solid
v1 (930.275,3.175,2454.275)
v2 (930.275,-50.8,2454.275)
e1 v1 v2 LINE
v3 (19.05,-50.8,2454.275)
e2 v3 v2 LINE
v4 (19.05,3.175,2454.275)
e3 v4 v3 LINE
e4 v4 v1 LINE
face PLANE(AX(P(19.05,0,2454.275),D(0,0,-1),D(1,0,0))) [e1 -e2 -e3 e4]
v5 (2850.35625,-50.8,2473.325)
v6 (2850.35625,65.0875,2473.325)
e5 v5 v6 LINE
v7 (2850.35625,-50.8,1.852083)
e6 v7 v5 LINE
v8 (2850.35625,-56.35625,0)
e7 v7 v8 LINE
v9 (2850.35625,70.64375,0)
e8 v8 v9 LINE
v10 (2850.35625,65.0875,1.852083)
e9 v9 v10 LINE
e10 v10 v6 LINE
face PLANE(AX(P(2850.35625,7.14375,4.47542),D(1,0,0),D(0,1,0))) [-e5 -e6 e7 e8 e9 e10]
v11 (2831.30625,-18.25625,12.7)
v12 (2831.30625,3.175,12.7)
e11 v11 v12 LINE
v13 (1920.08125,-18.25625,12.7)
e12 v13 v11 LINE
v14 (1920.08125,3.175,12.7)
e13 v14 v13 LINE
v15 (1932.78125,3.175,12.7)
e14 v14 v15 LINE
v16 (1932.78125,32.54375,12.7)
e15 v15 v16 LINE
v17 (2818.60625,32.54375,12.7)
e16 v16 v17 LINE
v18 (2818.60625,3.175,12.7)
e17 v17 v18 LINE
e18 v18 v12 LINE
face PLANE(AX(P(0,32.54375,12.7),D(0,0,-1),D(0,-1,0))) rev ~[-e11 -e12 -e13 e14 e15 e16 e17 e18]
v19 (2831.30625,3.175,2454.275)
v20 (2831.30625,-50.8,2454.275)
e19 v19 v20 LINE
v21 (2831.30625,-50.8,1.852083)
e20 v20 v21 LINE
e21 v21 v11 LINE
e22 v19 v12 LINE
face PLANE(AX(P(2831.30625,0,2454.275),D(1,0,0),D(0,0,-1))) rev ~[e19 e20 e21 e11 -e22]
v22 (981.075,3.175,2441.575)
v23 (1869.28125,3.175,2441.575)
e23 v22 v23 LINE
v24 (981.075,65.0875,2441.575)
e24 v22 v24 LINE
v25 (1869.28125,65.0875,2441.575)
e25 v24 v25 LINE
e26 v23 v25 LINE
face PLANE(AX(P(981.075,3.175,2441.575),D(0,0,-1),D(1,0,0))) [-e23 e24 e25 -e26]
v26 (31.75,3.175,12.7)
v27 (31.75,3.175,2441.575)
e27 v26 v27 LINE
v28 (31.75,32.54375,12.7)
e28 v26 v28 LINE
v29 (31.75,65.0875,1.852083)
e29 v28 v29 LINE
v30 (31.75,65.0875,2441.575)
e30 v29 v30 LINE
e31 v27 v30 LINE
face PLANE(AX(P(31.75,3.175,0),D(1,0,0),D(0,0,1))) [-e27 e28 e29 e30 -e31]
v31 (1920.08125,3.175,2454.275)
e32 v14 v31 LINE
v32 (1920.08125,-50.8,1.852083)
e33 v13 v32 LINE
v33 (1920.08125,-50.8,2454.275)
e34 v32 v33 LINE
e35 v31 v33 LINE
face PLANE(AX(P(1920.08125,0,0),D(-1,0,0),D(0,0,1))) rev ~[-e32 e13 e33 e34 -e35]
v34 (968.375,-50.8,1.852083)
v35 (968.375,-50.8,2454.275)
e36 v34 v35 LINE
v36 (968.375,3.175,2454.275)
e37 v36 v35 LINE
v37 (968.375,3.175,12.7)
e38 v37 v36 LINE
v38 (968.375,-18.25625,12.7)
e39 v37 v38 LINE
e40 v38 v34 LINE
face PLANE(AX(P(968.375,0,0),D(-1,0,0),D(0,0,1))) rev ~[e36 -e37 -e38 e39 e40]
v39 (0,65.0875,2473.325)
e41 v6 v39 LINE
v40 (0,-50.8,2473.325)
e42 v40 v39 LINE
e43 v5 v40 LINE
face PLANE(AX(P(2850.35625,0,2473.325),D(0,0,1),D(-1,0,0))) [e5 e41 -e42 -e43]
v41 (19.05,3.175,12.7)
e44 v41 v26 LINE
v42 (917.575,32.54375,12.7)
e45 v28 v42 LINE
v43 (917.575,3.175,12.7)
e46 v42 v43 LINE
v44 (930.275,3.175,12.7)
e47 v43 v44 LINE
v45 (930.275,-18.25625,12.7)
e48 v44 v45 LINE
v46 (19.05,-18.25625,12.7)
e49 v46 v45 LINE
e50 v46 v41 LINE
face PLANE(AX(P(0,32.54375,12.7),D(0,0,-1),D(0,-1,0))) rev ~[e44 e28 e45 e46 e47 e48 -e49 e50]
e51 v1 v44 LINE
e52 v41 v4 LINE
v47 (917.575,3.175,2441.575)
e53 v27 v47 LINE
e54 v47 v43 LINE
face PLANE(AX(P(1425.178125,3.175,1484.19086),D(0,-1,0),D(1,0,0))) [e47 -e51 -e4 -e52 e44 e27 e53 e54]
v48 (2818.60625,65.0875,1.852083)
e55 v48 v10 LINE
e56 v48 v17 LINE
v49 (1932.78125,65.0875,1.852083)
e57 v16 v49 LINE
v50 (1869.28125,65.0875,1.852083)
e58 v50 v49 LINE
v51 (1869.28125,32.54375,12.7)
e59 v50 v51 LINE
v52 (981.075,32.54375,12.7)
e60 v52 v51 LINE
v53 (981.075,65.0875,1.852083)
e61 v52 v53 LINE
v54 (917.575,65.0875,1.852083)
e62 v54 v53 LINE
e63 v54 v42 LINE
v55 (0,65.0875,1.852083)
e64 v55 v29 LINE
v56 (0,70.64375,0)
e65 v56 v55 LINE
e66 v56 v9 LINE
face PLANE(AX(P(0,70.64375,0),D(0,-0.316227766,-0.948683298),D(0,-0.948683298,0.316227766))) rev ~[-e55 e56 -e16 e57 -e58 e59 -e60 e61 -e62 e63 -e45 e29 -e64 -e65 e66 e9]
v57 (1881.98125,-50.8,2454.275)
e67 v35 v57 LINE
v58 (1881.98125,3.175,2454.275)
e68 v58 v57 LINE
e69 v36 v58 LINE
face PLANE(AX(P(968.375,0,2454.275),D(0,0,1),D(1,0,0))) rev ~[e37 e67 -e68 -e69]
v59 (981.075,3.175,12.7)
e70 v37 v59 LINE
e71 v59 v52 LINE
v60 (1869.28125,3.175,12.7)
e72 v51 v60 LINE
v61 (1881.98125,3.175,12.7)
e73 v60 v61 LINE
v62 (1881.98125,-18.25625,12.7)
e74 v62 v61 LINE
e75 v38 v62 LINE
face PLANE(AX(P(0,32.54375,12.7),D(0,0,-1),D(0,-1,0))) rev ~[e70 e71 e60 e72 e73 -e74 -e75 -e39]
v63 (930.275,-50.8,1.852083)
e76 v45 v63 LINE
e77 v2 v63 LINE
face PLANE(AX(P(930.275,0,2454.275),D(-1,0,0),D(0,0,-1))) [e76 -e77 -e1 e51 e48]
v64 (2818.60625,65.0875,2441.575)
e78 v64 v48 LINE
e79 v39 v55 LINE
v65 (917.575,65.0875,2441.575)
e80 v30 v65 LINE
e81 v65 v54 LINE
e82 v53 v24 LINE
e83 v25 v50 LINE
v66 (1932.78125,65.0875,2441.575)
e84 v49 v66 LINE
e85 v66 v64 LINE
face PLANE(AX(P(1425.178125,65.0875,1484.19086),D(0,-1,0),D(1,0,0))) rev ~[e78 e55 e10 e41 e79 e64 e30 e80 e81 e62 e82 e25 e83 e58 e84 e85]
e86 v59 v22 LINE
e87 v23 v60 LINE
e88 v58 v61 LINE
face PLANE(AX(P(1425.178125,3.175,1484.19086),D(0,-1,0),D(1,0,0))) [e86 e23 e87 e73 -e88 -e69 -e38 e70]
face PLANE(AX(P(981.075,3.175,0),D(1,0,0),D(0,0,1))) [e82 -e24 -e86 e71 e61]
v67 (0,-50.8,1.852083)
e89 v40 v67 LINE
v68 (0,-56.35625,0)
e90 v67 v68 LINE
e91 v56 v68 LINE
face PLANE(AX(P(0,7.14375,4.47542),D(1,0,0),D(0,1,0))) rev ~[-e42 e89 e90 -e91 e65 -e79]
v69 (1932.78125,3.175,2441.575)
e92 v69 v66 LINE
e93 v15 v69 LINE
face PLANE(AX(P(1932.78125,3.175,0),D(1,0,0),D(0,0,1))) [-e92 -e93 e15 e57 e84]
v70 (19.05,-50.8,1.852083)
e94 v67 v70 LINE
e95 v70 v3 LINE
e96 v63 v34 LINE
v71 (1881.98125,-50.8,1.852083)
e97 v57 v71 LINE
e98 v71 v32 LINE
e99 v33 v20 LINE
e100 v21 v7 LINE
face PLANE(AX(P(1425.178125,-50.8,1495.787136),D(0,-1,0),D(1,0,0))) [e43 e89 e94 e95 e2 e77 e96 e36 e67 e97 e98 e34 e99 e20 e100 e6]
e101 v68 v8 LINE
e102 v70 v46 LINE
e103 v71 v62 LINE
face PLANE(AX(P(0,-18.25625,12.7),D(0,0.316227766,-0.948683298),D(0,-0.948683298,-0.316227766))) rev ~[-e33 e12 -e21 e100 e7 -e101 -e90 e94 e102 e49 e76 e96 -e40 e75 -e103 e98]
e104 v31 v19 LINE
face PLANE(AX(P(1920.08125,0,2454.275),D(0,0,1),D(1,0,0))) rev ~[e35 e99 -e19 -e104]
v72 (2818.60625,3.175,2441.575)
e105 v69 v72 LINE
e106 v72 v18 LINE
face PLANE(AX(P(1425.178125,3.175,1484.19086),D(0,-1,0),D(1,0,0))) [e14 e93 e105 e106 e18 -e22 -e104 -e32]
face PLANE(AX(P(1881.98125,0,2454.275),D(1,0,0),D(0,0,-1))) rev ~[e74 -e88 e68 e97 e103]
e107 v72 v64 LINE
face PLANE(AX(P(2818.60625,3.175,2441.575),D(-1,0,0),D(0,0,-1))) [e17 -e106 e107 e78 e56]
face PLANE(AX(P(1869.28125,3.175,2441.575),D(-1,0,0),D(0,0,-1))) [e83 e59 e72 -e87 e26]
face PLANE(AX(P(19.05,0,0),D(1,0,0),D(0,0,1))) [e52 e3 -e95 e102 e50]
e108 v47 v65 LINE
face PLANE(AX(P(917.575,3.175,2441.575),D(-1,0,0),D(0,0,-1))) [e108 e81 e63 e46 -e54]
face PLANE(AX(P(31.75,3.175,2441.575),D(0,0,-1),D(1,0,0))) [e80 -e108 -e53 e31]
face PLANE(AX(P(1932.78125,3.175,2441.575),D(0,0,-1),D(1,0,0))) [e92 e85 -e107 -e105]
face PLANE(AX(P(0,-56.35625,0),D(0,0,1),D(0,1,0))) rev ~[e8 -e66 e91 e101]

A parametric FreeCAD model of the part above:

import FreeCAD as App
import Part
import Sketcher
from FreeCAD import Vector
Q = App.Units.Quantity

doc = App.newDocument("Part")
params = doc.addObject("Spreadsheet::Sheet", "Params")
for row, (alias, value) in enumerate([
    ("sketch1_width", "2.5 in"),
    ("sketch1_width2", "1.25 in"),
    ("sketch1_width3", "34.875 in"),
    ("sketch1_width4", "34.96875 in"),
    ("sketch1_height", "96.125 in"),
    ("pad1_length", "2.4375 in"),
    ("sketch2_width", "1.5 in"),
    ("sketch2_width2", "0.75 in"),
    ("sketch2_width3", "35.875 in"),
    ("sketch2_width4", "35.96875 in"),
    ("sketch2_height", "96.625 in"),
    ("pad2_length", "2 in"),
    ("pad2_length2", "0.125 in"),
    ("sketch3_width", "2 in"),
    ("sketch3_width2", "5 in"),
], start=1):
    params.set(f"A{row}", alias)
    params.set(f"B{row}", "=" + value)
    params.setAlias(f"B{row}", alias)

body = doc.addObject("PartDesign::Body", "Body")

sketch1 = body.newObject("Sketcher::SketchObject", "Sketch")
sketch1.AttachmentSupport = (doc.getObject("XZ_Plane"), [""])
sketch1.MapMode = "FlatFace"
sketch1.AttachmentOffset = App.Placement(Vector(0, 0, -0.125 * 25.4), App.Rotation())
sketch1.addGeometry([
    Part.LineSegment(Vector(0, 0, 0), Vector(32, 0, 0)),
    Part.LineSegment(Vector(32, 0, 0), Vector(32, 2442, 0)),
    Part.LineSegment(Vector(32, 2442, 0), Vector(918, 2442, 0)),
    Part.LineSegment(Vector(918, 2442, 0), Vector(918, 0, 0)),
    Part.LineSegment(Vector(918, 0, 0), Vector(981, 0, 0)),
    Part.LineSegment(Vector(981, 0, 0), Vector(981, 2442, 0)),
    Part.LineSegment(Vector(981, 2442, 0), Vector(1869, 2442, 0)),
    Part.LineSegment(Vector(1869, 2442, 0), Vector(1869, 0, 0)),
    Part.LineSegment(Vector(1869, 0, 0), Vector(1933, 0, 0)),
    Part.LineSegment(Vector(1933, 0, 0), Vector(1933, 2442, 0)),
    Part.LineSegment(Vector(1933, 2442, 0), Vector(2819, 2442, 0)),
    Part.LineSegment(Vector(2819, 2442, 0), Vector(2819, 0, 0)),
    Part.LineSegment(Vector(2819, 0, 0), Vector(2850, 0, 0)),
    Part.LineSegment(Vector(2850, 0, 0), Vector(2850, 2473, 0)),
    Part.LineSegment(Vector(2850, 2473, 0), Vector(0, 2473, 0)),
    Part.LineSegment(Vector(0, 2473, 0), Vector(0, 0, 0)),
], False)
sketch1.addConstraint([
    Sketcher.Constraint("Coincident", 0, 2, 1, 1),
    Sketcher.Constraint("Coincident", 1, 2, 2, 1),
    Sketcher.Constraint("Coincident", 2, 2, 3, 1),
    Sketcher.Constraint("Coincident", 3, 2, 4, 1),
    Sketcher.Constraint("Coincident", 4, 2, 5, 1),
    Sketcher.Constraint("Coincident", 5, 2, 6, 1),
    Sketcher.Constraint("Coincident", 6, 2, 7, 1),
    Sketcher.Constraint("Coincident", 7, 2, 8, 1),
    Sketcher.Constraint("Coincident", 8, 2, 9, 1),
    Sketcher.Constraint("Coincident", 9, 2, 10, 1),
    Sketcher.Constraint("Coincident", 10, 2, 11, 1),
    Sketcher.Constraint("Coincident", 11, 2, 12, 1),
    Sketcher.Constraint("Coincident", 12, 2, 13, 1),
    Sketcher.Constraint("Coincident", 13, 2, 14, 1),
    Sketcher.Constraint("Coincident", 14, 2, 15, 1),
    Sketcher.Constraint("Coincident", 15, 2, 0, 1),
    Sketcher.Constraint("Horizontal", 0),
    Sketcher.Constraint("Vertical", 1),
    Sketcher.Constraint("Horizontal", 2),
    Sketcher.Constraint("Vertical", 3),
    Sketcher.Constraint("Horizontal", 4),
    Sketcher.Constraint("Vertical", 5),
    Sketcher.Constraint("Horizontal", 6),
    Sketcher.Constraint("Vertical", 7),
    Sketcher.Constraint("Horizontal", 8),
    Sketcher.Constraint("Vertical", 9),
    Sketcher.Constraint("Horizontal", 10),
    Sketcher.Constraint("Vertical", 11),
    Sketcher.Constraint("Horizontal", 12),
    Sketcher.Constraint("Vertical", 13),
    Sketcher.Constraint("Horizontal", 14),
    Sketcher.Constraint("Vertical", 15),
    Sketcher.Constraint("Coincident", 15, 2, -1, 1),
    Sketcher.Constraint("PointOnObject", 3, 2, -1),
    Sketcher.Constraint("PointOnObject", 7, 2, -1),
    Sketcher.Constraint("PointOnObject", 11, 2, -1),
    Sketcher.Constraint("Horizontal", 2, 2, 5, 2),
    Sketcher.Constraint("Horizontal", 6, 2, 9, 2),
    Sketcher.Constraint("Equal", 4, 8),
    Sketcher.Constraint("Equal", 2, 10),
    Sketcher.Constraint("Equal", 0, 12),
    Sketcher.Constraint("DistanceX", 4, 1, 4, 2, Q("2.5 in")),
    Sketcher.Constraint("DistanceX", 0, 1, 0, 2, Q("1.25 in")),
    Sketcher.Constraint("DistanceX", 2, 1, 2, 2, Q("34.875 in")),
    Sketcher.Constraint("DistanceX", 6, 1, 6, 2, Q("34.96875 in")),
    Sketcher.Constraint("DistanceY", 1, 1, 1, 2, Q("96.125 in")),
    Sketcher.Constraint("DistanceY", 13, 1, 13, 2, Q("97.375 in")),
])
sketch1.setExpression("Constraints[41]", "Params.sketch1_width")
sketch1.setExpression("Constraints[42]", "Params.sketch1_width2")
sketch1.setExpression("Constraints[43]", "Params.sketch1_width3")
sketch1.setExpression("Constraints[44]", "Params.sketch1_width4")
sketch1.setExpression("Constraints[45]", "Params.sketch1_height")
pad1 = body.newObject("PartDesign::Pad", "Pad")
pad1.Profile = sketch1
pad1.setExpression("Length", "Params.pad1_length")
pad1.Reversed = True

sketch2 = body.newObject("Sketcher::SketchObject", "Sketch001")
sketch2.AttachmentSupport = (doc.getObject("XZ_Plane"), [""])
sketch2.MapMode = "FlatFace"
sketch2.addGeometry([
    Part.LineSegment(Vector(0, 0, 0), Vector(19, 0, 0)),
    Part.LineSegment(Vector(19, 0, 0), Vector(19, 2454, 0)),
    Part.LineSegment(Vector(19, 2454, 0), Vector(930, 2454, 0)),
    Part.LineSegment(Vector(930, 2454, 0), Vector(930, 0, 0)),
    Part.LineSegment(Vector(930, 0, 0), Vector(968, 0, 0)),
    Part.LineSegment(Vector(968, 0, 0), Vector(968, 2454, 0)),
    Part.LineSegment(Vector(968, 2454, 0), Vector(1882, 2454, 0)),
    Part.LineSegment(Vector(1882, 2454, 0), Vector(1882, 0, 0)),
    Part.LineSegment(Vector(1882, 0, 0), Vector(1920, 0, 0)),
    Part.LineSegment(Vector(1920, 0, 0), Vector(1920, 2454, 0)),
    Part.LineSegment(Vector(1920, 2454, 0), Vector(2831, 2454, 0)),
    Part.LineSegment(Vector(2831, 2454, 0), Vector(2831, 0, 0)),
    Part.LineSegment(Vector(2831, 0, 0), Vector(2850, 0, 0)),
    Part.LineSegment(Vector(2850, 0, 0), Vector(2850, 2473, 0)),
    Part.LineSegment(Vector(2850, 2473, 0), Vector(0, 2473, 0)),
    Part.LineSegment(Vector(0, 2473, 0), Vector(0, 0, 0)),
], False)
sketch2.addConstraint([
    Sketcher.Constraint("Coincident", 0, 2, 1, 1),
    Sketcher.Constraint("Coincident", 1, 2, 2, 1),
    Sketcher.Constraint("Coincident", 2, 2, 3, 1),
    Sketcher.Constraint("Coincident", 3, 2, 4, 1),
    Sketcher.Constraint("Coincident", 4, 2, 5, 1),
    Sketcher.Constraint("Coincident", 5, 2, 6, 1),
    Sketcher.Constraint("Coincident", 6, 2, 7, 1),
    Sketcher.Constraint("Coincident", 7, 2, 8, 1),
    Sketcher.Constraint("Coincident", 8, 2, 9, 1),
    Sketcher.Constraint("Coincident", 9, 2, 10, 1),
    Sketcher.Constraint("Coincident", 10, 2, 11, 1),
    Sketcher.Constraint("Coincident", 11, 2, 12, 1),
    Sketcher.Constraint("Coincident", 12, 2, 13, 1),
    Sketcher.Constraint("Coincident", 13, 2, 14, 1),
    Sketcher.Constraint("Coincident", 14, 2, 15, 1),
    Sketcher.Constraint("Coincident", 15, 2, 0, 1),
    Sketcher.Constraint("Horizontal", 0),
    Sketcher.Constraint("Vertical", 1),
    Sketcher.Constraint("Horizontal", 2),
    Sketcher.Constraint("Vertical", 3),
    Sketcher.Constraint("Horizontal", 4),
    Sketcher.Constraint("Vertical", 5),
    Sketcher.Constraint("Horizontal", 6),
    Sketcher.Constraint("Vertical", 7),
    Sketcher.Constraint("Horizontal", 8),
    Sketcher.Constraint("Vertical", 9),
    Sketcher.Constraint("Horizontal", 10),
    Sketcher.Constraint("Vertical", 11),
    Sketcher.Constraint("Horizontal", 12),
    Sketcher.Constraint("Vertical", 13),
    Sketcher.Constraint("Horizontal", 14),
    Sketcher.Constraint("Vertical", 15),
    Sketcher.Constraint("Coincident", 15, 2, -1, 1),
    Sketcher.Constraint("PointOnObject", 3, 2, -1),
    Sketcher.Constraint("PointOnObject", 7, 2, -1),
    Sketcher.Constraint("PointOnObject", 11, 2, -1),
    Sketcher.Constraint("Horizontal", 2, 2, 5, 2),
    Sketcher.Constraint("Horizontal", 6, 2, 9, 2),
    Sketcher.Constraint("Equal", 4, 8),
    Sketcher.Constraint("Equal", 2, 10),
    Sketcher.Constraint("Equal", 0, 12),
    Sketcher.Constraint("DistanceX", 4, 1, 4, 2, Q("1.5 in")),
    Sketcher.Constraint("DistanceX", 0, 1, 0, 2, Q("0.75 in")),
    Sketcher.Constraint("DistanceX", 2, 1, 2, 2, Q("35.875 in")),
    Sketcher.Constraint("DistanceX", 6, 1, 6, 2, Q("35.96875 in")),
    Sketcher.Constraint("DistanceY", 1, 1, 1, 2, Q("96.625 in")),
    Sketcher.Constraint("DistanceY", 13, 1, 13, 2, Q("97.375 in")),
])
sketch2.setExpression("Constraints[41]", "Params.sketch2_width")
sketch2.setExpression("Constraints[42]", "Params.sketch2_width2")
sketch2.setExpression("Constraints[43]", "Params.sketch2_width3")
sketch2.setExpression("Constraints[44]", "Params.sketch2_width4")
sketch2.setExpression("Constraints[45]", "Params.sketch2_height")
pad2 = body.newObject("PartDesign::Pad", "Pad001")
pad2.Profile = sketch2
pad2.Type = "TwoLengths"
pad2.setExpression("Length", "Params.pad2_length")
pad2.setExpression("Length2", "Params.pad2_length2")

sketch3 = body.newObject("Sketcher::SketchObject", "Sketch002")
sketch3.AttachmentSupport = (doc.getObject("YZ_Plane"), [""])
sketch3.MapMode = "FlatFace"
sketch3.addGeometry([
    Part.LineSegment(Vector(71, 0, 0), Vector(33, 13, 0)),
    Part.LineSegment(Vector(33, 13, 0), Vector(-18, 13, 0)),
    Part.LineSegment(Vector(-18, 13, 0), Vector(-56, 0, 0)),
    Part.LineSegment(Vector(-56, 0, 0), Vector(71, 0, 0)),
], False)
sketch3.addConstraint([
    Sketcher.Constraint("Coincident", 0, 2, 1, 1),
    Sketcher.Constraint("Coincident", 1, 2, 2, 1),
    Sketcher.Constraint("Coincident", 2, 2, 3, 1),
    Sketcher.Constraint("Coincident", 3, 2, 0, 1),
    Sketcher.Constraint("Horizontal", 1),
    Sketcher.Constraint("Horizontal", 3),
    Sketcher.Constraint("PointOnObject", 2, 2, -1),
    Sketcher.Constraint("Equal", 0, 2),
    Sketcher.Constraint("DistanceX", 1, 2, 1, 1, Q("2 in")),
    Sketcher.Constraint("DistanceX", 3, 1, 3, 2, Q("5 in")),
    Sketcher.Constraint("DistanceY", -1, 1, 0, 2, Q("0.5 in")),
    Sketcher.Constraint("DistanceX", -1, 1, 0, 2, Q("1.28125 in")),
])
sketch3.setExpression("Constraints[8]", "Params.sketch3_width")
sketch3.setExpression("Constraints[9]", "Params.sketch3_width2")
pad3 = body.newObject("PartDesign::Pad", "Pad002")
pad3.Profile = sketch3
pad3.Type = "UpToLast"

doc.recompute()
